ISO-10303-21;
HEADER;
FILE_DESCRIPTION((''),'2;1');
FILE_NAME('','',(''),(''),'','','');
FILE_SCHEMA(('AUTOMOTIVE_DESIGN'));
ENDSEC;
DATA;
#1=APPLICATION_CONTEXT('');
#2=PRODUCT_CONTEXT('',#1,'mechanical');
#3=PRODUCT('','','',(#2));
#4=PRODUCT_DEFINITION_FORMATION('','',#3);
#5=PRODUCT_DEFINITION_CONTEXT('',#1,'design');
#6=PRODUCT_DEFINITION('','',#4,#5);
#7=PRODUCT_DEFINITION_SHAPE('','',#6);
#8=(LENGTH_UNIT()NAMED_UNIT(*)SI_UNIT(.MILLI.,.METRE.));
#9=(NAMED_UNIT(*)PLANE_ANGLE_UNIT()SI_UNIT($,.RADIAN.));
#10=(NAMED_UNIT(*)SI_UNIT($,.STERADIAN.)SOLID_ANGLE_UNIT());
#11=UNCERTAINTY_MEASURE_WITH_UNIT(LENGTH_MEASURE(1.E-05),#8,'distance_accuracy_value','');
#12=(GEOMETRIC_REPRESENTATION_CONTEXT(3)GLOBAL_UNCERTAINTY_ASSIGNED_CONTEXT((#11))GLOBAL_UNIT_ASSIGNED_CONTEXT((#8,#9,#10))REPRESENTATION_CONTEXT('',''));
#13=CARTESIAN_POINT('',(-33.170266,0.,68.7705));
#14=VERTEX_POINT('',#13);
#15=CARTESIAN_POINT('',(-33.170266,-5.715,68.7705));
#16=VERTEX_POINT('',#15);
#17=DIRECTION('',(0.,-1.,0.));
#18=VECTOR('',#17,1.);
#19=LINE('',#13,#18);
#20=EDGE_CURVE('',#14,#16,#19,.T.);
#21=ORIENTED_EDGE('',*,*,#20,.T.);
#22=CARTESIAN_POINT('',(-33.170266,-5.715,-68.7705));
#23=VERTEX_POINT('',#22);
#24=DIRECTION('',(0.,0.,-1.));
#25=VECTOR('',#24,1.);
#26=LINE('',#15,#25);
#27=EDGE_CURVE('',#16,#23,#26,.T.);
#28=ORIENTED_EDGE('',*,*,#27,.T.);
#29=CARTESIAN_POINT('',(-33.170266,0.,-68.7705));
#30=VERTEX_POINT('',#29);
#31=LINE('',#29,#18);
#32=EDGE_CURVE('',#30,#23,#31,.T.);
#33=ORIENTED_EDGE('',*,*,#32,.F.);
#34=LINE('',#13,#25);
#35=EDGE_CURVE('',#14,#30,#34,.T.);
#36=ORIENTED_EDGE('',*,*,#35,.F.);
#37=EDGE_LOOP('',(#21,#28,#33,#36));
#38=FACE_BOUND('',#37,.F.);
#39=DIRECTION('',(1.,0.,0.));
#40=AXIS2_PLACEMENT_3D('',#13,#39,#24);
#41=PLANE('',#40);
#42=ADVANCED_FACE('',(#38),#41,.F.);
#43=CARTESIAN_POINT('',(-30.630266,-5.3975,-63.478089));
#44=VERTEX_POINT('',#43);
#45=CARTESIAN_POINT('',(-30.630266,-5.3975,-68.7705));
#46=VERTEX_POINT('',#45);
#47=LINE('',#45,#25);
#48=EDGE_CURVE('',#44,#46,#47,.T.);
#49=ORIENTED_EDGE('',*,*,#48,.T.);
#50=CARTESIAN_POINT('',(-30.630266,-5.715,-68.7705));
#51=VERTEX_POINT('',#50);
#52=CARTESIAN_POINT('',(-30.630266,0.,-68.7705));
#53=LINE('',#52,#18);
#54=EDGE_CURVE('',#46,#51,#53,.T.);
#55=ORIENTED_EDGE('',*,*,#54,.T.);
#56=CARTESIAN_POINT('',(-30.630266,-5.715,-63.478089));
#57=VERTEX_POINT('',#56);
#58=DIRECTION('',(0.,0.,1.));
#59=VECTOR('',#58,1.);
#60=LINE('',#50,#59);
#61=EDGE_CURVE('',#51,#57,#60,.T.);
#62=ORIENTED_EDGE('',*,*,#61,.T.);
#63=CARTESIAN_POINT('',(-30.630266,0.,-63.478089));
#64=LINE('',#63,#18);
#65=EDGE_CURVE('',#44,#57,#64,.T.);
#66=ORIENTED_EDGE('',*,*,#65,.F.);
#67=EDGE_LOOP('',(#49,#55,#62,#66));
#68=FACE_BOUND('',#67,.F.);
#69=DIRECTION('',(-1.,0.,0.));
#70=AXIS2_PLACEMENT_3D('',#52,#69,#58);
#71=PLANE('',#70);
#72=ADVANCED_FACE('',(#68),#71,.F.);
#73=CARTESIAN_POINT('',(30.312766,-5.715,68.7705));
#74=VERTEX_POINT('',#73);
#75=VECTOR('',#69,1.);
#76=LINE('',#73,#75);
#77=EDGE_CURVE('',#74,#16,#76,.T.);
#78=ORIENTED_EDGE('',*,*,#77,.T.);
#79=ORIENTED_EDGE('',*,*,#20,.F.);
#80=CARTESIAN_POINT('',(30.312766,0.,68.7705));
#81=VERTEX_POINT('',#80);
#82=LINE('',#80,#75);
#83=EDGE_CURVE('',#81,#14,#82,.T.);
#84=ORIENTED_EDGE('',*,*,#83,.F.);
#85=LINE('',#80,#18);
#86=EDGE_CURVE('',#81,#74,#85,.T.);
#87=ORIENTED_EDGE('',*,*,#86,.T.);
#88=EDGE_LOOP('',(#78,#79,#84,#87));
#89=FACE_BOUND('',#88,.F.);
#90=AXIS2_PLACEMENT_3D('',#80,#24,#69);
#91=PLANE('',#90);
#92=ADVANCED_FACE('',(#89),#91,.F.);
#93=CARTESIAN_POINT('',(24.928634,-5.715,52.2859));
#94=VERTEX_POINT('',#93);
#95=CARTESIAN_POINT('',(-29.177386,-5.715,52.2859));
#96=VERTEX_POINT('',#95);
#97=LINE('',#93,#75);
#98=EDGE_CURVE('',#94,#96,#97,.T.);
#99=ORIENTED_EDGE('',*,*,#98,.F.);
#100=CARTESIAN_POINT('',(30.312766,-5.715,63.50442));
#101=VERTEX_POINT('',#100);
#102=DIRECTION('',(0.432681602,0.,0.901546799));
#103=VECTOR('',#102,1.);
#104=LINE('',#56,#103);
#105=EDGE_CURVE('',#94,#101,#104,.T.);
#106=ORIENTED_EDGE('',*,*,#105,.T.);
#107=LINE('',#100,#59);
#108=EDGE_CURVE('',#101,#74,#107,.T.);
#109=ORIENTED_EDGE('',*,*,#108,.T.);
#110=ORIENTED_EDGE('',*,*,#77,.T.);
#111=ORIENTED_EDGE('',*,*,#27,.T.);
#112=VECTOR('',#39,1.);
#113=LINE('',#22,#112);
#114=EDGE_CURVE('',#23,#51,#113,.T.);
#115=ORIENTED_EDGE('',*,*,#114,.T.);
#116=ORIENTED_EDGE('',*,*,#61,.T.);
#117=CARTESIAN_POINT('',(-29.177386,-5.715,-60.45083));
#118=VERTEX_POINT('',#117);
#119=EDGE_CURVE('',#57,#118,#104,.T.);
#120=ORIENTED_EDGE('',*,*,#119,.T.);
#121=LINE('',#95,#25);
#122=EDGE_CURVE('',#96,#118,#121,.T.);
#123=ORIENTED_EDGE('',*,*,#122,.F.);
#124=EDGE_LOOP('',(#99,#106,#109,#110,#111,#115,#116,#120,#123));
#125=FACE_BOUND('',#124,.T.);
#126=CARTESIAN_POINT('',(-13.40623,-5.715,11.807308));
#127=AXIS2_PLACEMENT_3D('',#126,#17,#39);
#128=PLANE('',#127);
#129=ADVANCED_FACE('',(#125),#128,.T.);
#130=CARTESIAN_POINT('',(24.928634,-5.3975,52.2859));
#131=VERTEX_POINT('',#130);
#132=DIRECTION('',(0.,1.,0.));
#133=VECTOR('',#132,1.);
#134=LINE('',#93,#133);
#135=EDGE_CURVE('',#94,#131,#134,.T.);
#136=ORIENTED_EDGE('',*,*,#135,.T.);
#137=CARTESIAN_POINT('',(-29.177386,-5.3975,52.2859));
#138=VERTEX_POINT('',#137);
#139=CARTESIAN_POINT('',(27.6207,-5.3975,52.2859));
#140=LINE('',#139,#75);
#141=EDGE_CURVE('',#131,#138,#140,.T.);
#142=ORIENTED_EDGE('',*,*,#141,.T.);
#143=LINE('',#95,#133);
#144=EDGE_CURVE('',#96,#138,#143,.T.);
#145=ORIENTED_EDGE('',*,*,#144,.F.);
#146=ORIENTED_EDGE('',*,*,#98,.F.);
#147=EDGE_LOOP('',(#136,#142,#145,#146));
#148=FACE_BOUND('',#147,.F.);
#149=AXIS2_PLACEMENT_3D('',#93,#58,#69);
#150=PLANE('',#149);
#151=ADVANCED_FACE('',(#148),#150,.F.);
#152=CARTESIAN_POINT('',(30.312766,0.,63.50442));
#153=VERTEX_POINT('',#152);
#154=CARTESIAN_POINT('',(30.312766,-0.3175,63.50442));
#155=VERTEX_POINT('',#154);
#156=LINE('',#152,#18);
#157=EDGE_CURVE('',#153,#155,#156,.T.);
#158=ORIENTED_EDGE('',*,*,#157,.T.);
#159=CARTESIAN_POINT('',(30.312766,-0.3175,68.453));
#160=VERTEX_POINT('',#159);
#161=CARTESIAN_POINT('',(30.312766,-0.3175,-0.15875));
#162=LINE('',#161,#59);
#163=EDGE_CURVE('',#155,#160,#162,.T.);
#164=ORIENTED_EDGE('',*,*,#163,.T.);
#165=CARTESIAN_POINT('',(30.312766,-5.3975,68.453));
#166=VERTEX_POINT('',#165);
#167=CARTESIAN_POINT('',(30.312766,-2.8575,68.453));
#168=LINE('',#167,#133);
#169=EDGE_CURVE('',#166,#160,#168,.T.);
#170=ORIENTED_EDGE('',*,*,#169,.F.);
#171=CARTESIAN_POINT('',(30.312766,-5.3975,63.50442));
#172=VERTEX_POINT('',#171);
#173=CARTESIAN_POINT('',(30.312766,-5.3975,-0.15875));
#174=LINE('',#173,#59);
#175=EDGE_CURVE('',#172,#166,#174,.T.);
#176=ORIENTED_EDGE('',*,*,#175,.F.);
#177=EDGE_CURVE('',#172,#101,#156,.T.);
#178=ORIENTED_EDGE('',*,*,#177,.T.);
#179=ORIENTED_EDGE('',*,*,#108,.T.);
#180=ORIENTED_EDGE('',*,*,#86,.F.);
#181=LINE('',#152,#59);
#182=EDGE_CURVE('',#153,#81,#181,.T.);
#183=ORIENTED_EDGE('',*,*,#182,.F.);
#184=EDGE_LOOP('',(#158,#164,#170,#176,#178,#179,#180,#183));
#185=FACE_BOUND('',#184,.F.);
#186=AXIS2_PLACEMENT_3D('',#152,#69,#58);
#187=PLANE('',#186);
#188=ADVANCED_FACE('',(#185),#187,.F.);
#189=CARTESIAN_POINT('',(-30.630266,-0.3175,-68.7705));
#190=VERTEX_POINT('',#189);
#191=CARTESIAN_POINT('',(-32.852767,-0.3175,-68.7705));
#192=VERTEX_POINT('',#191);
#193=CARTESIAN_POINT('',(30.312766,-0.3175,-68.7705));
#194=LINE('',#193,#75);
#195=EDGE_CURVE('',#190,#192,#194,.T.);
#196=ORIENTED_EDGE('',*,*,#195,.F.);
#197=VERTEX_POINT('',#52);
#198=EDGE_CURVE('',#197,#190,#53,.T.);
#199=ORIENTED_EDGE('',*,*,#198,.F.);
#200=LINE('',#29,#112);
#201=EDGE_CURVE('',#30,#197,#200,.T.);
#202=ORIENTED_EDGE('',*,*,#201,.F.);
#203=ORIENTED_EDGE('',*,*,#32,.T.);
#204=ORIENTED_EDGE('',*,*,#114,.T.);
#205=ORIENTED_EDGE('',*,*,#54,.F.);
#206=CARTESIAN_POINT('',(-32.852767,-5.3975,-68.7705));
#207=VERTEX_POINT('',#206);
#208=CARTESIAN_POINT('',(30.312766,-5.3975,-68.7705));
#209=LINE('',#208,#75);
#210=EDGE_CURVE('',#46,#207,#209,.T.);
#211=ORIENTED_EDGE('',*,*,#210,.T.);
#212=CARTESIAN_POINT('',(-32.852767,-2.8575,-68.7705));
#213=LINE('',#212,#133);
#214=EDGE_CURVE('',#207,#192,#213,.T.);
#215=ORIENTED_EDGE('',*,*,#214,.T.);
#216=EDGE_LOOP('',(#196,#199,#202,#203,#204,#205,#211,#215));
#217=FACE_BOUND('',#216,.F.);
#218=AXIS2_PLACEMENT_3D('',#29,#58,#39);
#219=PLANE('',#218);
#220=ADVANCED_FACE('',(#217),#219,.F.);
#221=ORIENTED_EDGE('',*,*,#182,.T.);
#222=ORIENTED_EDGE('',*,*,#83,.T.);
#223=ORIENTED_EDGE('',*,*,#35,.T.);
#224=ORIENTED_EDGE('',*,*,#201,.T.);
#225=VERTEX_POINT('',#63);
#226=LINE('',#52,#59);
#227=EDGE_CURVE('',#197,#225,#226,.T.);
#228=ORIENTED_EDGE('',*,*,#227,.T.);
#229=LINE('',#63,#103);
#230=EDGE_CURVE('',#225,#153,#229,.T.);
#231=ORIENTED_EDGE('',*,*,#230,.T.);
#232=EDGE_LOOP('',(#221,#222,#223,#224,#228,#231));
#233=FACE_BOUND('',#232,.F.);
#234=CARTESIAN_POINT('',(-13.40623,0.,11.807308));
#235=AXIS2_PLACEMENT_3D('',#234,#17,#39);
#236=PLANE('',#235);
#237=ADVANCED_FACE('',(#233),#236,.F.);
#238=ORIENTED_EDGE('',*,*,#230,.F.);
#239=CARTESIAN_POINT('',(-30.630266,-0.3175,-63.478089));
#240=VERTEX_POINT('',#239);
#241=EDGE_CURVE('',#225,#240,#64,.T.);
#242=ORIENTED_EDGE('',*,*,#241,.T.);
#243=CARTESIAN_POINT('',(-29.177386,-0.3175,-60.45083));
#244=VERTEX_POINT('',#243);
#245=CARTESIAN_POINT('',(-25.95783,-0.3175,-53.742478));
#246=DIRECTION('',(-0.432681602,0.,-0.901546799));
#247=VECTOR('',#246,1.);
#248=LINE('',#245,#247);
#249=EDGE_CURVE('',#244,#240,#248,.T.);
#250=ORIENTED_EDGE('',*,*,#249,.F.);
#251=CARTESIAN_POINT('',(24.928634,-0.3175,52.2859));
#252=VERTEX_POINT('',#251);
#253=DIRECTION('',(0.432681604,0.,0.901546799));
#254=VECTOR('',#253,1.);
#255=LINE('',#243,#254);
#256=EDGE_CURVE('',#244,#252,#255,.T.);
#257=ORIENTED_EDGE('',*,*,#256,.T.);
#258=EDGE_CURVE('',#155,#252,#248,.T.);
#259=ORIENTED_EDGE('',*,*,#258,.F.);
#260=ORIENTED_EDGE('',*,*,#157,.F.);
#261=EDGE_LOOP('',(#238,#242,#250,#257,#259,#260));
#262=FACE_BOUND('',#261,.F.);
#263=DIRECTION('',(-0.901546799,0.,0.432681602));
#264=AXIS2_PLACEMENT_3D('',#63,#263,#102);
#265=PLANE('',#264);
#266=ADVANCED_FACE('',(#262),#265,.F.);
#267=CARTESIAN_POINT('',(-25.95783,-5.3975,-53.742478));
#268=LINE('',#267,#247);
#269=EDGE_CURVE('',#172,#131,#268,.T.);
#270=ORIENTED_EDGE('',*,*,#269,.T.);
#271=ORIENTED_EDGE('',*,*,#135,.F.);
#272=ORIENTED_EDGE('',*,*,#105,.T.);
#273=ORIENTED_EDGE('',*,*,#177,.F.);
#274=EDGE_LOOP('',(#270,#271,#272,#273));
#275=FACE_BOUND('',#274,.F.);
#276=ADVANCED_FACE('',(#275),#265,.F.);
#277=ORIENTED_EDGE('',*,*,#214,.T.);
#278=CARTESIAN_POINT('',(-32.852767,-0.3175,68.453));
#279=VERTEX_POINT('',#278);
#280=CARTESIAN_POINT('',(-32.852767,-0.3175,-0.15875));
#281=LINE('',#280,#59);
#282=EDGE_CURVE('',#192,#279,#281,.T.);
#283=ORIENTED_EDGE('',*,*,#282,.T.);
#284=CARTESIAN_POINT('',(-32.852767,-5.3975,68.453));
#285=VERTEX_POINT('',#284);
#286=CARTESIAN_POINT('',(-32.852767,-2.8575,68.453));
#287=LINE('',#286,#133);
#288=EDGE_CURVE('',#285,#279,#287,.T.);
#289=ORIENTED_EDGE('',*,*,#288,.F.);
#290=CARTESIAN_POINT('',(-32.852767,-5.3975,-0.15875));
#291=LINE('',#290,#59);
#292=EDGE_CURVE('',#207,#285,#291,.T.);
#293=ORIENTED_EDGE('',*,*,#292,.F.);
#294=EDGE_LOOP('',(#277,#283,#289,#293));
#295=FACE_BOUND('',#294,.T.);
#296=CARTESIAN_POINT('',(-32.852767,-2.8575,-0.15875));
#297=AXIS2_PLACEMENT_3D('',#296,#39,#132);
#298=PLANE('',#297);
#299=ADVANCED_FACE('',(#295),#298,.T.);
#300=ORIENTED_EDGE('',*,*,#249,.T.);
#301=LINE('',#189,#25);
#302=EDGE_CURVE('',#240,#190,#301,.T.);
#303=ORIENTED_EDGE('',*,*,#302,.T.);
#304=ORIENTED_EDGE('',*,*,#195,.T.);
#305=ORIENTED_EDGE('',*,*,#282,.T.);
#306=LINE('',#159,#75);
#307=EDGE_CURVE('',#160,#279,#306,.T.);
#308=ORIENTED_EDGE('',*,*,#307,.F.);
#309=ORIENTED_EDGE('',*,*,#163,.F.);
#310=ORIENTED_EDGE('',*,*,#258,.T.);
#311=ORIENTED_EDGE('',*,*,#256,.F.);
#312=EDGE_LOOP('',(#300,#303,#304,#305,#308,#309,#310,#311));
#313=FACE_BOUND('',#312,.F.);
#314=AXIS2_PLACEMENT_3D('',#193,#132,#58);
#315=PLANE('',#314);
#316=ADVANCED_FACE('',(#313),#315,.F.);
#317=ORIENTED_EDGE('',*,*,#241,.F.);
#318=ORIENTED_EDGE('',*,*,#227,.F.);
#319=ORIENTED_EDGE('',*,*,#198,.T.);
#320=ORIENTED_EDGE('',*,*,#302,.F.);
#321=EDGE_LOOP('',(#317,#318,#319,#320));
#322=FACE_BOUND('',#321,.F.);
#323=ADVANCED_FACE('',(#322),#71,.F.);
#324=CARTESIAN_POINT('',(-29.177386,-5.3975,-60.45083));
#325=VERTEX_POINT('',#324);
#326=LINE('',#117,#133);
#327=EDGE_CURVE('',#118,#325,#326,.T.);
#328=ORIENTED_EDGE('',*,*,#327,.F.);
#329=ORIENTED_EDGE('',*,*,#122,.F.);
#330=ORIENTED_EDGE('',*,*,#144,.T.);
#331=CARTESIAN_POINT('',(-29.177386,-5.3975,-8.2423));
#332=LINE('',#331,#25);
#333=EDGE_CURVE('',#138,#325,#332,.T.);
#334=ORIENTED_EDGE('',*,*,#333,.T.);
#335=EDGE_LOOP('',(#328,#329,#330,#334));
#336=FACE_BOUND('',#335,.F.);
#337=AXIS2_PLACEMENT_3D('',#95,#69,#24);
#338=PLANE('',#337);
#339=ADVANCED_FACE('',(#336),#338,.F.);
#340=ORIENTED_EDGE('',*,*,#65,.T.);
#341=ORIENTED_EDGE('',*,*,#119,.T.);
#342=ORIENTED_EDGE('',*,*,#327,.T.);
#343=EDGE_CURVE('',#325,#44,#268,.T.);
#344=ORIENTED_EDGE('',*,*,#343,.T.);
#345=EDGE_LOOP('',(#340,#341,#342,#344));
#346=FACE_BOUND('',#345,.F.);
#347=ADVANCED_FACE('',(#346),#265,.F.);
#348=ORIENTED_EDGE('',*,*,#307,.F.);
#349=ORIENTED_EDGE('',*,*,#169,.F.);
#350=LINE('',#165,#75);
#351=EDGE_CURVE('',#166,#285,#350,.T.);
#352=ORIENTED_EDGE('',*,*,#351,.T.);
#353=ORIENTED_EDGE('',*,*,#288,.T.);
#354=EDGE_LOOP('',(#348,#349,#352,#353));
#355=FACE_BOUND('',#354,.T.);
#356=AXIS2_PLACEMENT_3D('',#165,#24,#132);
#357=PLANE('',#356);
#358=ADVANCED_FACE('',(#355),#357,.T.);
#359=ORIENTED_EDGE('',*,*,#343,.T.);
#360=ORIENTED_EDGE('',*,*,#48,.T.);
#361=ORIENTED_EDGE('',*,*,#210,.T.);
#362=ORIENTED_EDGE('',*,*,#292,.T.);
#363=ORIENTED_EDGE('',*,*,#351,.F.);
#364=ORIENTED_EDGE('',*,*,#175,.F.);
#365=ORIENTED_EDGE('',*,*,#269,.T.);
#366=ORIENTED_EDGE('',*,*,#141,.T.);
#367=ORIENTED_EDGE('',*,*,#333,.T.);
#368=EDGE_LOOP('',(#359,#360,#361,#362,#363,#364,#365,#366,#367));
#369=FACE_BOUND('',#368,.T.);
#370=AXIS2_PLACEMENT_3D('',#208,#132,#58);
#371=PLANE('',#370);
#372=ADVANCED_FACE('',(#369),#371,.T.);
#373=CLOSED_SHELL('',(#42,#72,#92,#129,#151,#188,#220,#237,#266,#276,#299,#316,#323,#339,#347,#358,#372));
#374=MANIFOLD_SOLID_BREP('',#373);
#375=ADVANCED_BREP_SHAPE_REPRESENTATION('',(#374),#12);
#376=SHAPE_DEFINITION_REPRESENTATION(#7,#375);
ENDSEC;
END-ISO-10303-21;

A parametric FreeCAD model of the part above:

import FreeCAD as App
import Part
import Sketcher

V = App.Vector
Q = App.Units.Quantity

doc = App.newDocument("Part")
params = doc.addObject("Spreadsheet::Sheet", "Params")
for row, (alias, value) in enumerate([
    ("sketch1_width", "0.1 in"),
    ("sketch1_height", "5.415 in"),
    ("pad1_length", "0.225 in"),
    ("pocket1_length", "0.2125 in"),
    ("sketch3_width", "0.2 in"),
    ("pocket2_length", "63.165533 mm"),
], start=1):
    params.set(f"A{row}", alias)
    params.set(f"B{row}", "=" + value)
    params.setAlias(f"B{row}", alias)

body = doc.addObject("PartDesign::Body", "Body")

# Sketch on XZ plane
sketch1 = doc.addObject("Sketcher::SketchObject", "Sketch")
body.addObject(sketch1)
sketch1.AttachmentSupport = (doc.XZ_Plane, [""])
sketch1.MapMode = "FlatFace"
sketch1.addGeometry([
    Part.LineSegment(V(30.3, 68.8, 0), V(-33.2, 68.8, 0)),  # 0
    Part.LineSegment(V(-33.2, 68.8, 0), V(-33.2, -68.8, 0)),  # 1
    Part.LineSegment(V(-33.2, -68.8, 0), V(-30.6, -68.8, 0)),  # 2
    Part.LineSegment(V(-30.6, -68.8, 0), V(-30.6, -63.5, 0)),  # 3
    Part.LineSegment(V(-30.6, -63.5, 0), V(30.3, 63.5, 0)),  # 4
    Part.LineSegment(V(30.3, 63.5, 0), V(30.3, 68.8, 0)),  # 5
], False)
sketch1.addConstraint([
    Sketcher.Constraint("Coincident", 0, 2, 1, 1),
    Sketcher.Constraint("Coincident", 1, 2, 2, 1),
    Sketcher.Constraint("Coincident", 2, 2, 3, 1),
    Sketcher.Constraint("Coincident", 3, 2, 4, 1),
    Sketcher.Constraint("Coincident", 4, 2, 5, 1),
    Sketcher.Constraint("Coincident", 5, 2, 0, 1),
    Sketcher.Constraint("Horizontal", 0),
    Sketcher.Constraint("Vertical", 1),
    Sketcher.Constraint("Horizontal", 2),
    Sketcher.Constraint("Vertical", 3),
    Sketcher.Constraint("Vertical", 5),
    Sketcher.Constraint("DistanceX", 2, 1, 2, 2, Q("0.1 in")),
    Sketcher.Constraint("DistanceY", 1, 2, 1, 1, Q("5.415 in")),
    Sketcher.Constraint("DistanceY", -1, 1, 0, 2, Q("2.7075 in")),
    Sketcher.Constraint("DistanceX", 0, 2, 0, 1, 63.483032),
    Sketcher.Constraint("DistanceY", 3, 1, 3, 2, 5.292411),
    Sketcher.Constraint("DistanceY", 5, 1, 5, 2, 5.26608),
    Sketcher.Constraint("DistanceX", 0, 2, -1, 1, 33.170266),
])
sketch1.setExpression("Constraints[11]", "Params.sketch1_width")
sketch1.setExpression("Constraints[12]", "Params.sketch1_height")
pad1 = doc.addObject("PartDesign::Pad", "Pad")
body.addObject(pad1)
pad1.Profile = sketch1
pad1.setExpression("Length", "Params.pad1_length")

# Sketch on XZ plane
sketch2 = doc.addObject("Sketcher::SketchObject", "Sketch001")
body.addObject(sketch2)
sketch2.AttachmentSupport = (doc.XZ_Plane, [""])
sketch2.MapMode = "FlatFace"
sketch2.AttachmentOffset = App.Placement(V(0, 0, 0.225 * 25.4), App.Rotation())
sketch2.addGeometry([
    Part.LineSegment(V(25, 52, 0), V(-29, 52, 0)),
    Part.LineSegment(V(-29, 52, 0), V(-29, -60, 0)),
    Part.LineSegment(V(-29, -60, 0), V(25, 52, 0)),
], False)
sketch2.addConstraint([
    Sketcher.Constraint("Coincident", 0, 2, 1, 1),
    Sketcher.Constraint("Coincident", 1, 2, 2, 1),
    Sketcher.Constraint("Coincident", 2, 2, 0, 1),
    Sketcher.Constraint("Horizontal", 0),
    Sketcher.Constraint("Vertical", 1),
    Sketcher.Constraint("DistanceY", -1, 1, 0, 2, Q("2.0585 in")),
    Sketcher.Constraint("DistanceX", 0, 2, 0, 1, 54.10602),
    Sketcher.Constraint("DistanceY", 1, 2, 1, 1, 112.73673),
    Sketcher.Constraint("DistanceX", 0, 2, -1, 1, 29.177386),
])
pocket1 = doc.addObject("PartDesign::Pocket", "Pocket")
body.addObject(pocket1)
pocket1.Profile = sketch2
pocket1.setExpression("Length", "Params.pocket1_length")

# Sketch on YZ plane
sketch3 = doc.addObject("Sketcher::SketchObject", "Sketch002")
body.addObject(sketch3)
sketch3.AttachmentSupport = (doc.YZ_Plane, [""])
sketch3.MapMode = "FlatFace"
sketch3.AttachmentOffset = App.Placement(V(0, 0, 30.312766), App.Rotation())
sketch3.addGeometry([
    Part.LineSegment(V(-5, 68, 0), V(-5, -69, 0)),
    Part.LineSegment(V(-5, -69, 0), V(0, -69, 0)),
    Part.LineSegment(V(0, -69, 0), V(0, 68, 0)),
    Part.LineSegment(V(0, 68, 0), V(-5, 68, 0)),
], False)
sketch3.addConstraint([
    Sketcher.Constraint("Coincident", 0, 2, 1, 1),
    Sketcher.Constraint("Coincident", 1, 2, 2, 1),
    Sketcher.Constraint("Coincident", 2, 2, 3, 1),
    Sketcher.Constraint("Coincident", 3, 2, 0, 1),
    Sketcher.Constraint("Vertical", 0),
    Sketcher.Constraint("Horizontal", 1),
    Sketcher.Constraint("Vertical", 2),
    Sketcher.Constraint("Horizontal", 3),
    Sketcher.Constraint("DistanceX", 1, 1, 1, 2, Q("0.2 in")),
    Sketcher.Constraint("DistanceY", 0, 2, 0, 1, Q("5.4025 in")),
    Sketcher.Constraint("DistanceY", -1, 1, 2, 2, Q("2.695 in")),
    Sketcher.Constraint("DistanceX", 0, 2, -1, 1, Q("0.2125 in")),
])
sketch3.setExpression("Constraints[8]", "Params.sketch3_width")
pocket2 = doc.addObject("PartDesign::Pocket", "Pocket001")
body.addObject(pocket2)
pocket2.Profile = sketch3
pocket2.setExpression("Length", "Params.pocket2_length")

doc.recompute()
